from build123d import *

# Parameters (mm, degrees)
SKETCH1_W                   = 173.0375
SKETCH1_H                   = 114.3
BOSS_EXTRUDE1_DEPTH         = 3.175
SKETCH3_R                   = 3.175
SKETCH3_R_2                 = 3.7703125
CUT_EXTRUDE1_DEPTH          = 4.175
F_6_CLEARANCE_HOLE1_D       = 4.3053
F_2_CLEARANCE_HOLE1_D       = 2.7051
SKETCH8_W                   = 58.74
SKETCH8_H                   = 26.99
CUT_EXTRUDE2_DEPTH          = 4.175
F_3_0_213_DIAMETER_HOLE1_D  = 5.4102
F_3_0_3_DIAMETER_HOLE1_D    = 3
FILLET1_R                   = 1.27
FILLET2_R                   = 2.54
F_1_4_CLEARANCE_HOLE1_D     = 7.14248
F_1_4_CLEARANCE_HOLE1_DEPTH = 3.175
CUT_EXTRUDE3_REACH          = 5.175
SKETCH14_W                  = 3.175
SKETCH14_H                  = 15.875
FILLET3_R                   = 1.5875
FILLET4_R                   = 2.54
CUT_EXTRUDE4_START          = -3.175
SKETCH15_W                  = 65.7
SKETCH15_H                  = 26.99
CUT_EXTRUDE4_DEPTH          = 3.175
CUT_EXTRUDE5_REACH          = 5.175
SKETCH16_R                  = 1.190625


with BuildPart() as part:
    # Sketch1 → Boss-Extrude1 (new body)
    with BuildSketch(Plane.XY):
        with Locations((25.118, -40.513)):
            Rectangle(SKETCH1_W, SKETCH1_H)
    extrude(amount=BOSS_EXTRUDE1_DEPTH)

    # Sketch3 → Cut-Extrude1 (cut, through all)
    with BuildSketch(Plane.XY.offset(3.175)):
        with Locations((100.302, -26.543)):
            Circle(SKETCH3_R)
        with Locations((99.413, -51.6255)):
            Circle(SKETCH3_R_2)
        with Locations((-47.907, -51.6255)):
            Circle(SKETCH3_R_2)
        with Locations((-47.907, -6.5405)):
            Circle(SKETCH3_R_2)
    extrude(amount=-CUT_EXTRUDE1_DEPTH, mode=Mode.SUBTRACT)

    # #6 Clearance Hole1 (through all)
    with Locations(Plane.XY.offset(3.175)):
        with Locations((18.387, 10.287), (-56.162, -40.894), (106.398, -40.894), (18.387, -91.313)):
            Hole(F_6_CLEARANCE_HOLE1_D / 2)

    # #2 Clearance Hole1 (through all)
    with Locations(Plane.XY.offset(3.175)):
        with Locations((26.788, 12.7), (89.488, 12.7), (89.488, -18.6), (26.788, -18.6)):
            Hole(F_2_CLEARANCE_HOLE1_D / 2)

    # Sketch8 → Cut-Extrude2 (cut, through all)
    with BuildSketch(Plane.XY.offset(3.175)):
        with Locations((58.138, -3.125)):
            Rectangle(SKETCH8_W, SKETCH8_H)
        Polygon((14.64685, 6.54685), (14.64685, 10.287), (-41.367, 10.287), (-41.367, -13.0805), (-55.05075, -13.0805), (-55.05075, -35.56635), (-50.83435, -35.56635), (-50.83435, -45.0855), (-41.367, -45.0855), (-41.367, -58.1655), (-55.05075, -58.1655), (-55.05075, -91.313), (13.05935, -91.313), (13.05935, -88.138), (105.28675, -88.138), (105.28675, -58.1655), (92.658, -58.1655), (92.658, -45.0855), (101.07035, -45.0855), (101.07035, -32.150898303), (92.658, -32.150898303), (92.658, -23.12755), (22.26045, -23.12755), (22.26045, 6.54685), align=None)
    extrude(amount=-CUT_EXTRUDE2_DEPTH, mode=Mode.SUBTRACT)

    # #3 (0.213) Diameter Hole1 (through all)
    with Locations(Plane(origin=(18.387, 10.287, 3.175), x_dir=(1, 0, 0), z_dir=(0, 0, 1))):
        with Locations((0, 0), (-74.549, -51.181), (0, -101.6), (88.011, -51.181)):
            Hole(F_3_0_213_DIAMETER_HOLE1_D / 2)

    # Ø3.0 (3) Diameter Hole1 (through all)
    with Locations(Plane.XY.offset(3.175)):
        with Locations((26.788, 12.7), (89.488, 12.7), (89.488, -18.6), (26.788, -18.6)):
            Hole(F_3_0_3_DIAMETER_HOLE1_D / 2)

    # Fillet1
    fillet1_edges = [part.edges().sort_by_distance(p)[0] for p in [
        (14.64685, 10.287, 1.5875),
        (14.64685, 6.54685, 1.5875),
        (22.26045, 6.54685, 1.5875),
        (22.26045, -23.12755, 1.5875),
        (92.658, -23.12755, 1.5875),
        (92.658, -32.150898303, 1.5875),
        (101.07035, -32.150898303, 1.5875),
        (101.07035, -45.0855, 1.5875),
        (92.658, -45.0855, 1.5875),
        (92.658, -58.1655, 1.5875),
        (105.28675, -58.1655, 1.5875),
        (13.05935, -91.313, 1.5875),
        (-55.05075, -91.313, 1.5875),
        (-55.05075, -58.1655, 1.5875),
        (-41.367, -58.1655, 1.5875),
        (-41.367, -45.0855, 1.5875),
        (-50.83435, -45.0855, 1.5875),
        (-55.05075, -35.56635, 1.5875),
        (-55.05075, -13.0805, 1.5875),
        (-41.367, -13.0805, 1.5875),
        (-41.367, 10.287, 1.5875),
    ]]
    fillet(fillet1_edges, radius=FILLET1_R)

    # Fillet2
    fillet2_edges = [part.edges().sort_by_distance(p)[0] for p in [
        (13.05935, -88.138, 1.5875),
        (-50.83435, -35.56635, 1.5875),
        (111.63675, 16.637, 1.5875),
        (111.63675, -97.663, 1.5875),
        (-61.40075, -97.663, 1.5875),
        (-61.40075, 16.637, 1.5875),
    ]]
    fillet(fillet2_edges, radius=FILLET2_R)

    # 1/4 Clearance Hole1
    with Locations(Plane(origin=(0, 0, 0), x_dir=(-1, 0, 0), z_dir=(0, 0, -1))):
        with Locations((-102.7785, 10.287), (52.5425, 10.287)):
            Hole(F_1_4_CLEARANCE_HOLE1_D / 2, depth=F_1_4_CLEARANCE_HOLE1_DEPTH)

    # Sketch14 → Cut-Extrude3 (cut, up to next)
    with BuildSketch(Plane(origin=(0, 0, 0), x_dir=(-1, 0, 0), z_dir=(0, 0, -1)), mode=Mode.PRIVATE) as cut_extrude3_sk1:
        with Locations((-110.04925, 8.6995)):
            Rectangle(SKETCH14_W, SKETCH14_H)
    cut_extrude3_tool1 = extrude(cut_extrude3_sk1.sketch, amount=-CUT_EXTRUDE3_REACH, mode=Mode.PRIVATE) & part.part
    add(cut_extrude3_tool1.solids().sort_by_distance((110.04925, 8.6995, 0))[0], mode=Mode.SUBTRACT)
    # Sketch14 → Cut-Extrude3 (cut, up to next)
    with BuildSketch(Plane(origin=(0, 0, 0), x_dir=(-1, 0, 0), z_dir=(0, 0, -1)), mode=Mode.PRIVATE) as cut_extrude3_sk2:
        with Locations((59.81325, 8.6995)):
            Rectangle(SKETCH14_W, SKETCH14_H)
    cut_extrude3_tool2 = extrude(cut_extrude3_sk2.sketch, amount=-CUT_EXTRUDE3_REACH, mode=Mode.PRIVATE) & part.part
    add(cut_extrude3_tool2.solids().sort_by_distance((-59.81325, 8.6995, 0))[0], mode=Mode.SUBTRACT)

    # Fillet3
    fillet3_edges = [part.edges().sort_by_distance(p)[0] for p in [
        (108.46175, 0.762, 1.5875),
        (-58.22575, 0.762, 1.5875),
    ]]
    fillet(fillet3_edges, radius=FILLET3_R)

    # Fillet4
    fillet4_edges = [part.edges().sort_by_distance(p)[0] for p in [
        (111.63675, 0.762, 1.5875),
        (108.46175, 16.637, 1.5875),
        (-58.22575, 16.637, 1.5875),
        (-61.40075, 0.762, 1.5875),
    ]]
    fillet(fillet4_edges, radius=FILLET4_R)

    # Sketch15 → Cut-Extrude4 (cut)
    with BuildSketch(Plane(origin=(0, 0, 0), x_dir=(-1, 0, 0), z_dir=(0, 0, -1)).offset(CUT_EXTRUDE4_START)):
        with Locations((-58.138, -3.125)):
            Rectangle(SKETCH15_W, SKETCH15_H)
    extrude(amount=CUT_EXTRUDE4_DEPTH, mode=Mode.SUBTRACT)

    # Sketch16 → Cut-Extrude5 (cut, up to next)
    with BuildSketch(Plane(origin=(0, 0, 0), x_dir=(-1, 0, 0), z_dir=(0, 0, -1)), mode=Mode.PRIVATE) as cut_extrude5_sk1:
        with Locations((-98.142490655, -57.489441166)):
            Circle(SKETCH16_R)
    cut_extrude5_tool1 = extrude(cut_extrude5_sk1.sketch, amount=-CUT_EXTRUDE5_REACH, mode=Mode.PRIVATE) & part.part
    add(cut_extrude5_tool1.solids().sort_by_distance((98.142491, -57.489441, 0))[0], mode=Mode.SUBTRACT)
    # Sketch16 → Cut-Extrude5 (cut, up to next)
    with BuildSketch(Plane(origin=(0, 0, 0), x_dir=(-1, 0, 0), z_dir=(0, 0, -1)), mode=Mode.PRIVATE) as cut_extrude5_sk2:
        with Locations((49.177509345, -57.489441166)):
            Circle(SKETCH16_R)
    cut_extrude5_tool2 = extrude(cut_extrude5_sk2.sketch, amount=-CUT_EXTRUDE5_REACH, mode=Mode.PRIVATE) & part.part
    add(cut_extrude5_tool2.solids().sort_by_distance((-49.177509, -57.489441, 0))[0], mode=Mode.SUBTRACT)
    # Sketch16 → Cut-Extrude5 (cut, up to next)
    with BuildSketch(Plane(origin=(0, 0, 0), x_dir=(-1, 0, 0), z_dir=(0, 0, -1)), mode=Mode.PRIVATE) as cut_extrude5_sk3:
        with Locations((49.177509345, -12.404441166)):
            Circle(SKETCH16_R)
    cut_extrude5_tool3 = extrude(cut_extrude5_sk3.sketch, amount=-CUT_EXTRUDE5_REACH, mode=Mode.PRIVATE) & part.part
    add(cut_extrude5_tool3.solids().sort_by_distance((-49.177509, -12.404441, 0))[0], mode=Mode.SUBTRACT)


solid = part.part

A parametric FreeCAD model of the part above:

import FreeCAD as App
import Part
import Sketcher
from FreeCAD import Vector
Q = App.Units.Quantity


def edges_at(feature, points):
    """Names of the edges that pass closest to the given points."""
    edges = feature.Shape.Edges
    near = lambda p: min(range(len(edges)), key=lambda i: edges[i].distToShape(Part.Vertex(*p))[0])
    return sorted({f"Edge{near(p) + 1}" for p in points})


def add_polygon(sketch, points):
    """Adds a closed chain of lines whose ends are joined by coincident constraints."""
    first, n = sketch.GeometryCount, len(points)
    for a, b in zip(points, points[1:] + points[:1]):
        sketch.addGeometry(Part.LineSegment(App.Vector(*a, 0), App.Vector(*b, 0)), False)
    for i in range(n):
        sketch.addConstraint(Sketcher.Constraint("Coincident", first + i, 2, first + (i + 1) % n, 1))

doc = App.newDocument("Part")
params = doc.addObject("Spreadsheet::Sheet", "Params")
for row, (alias, value) in enumerate([
    ("sketch1_height", "4.5 in"),
    ("sketch1_width", "6.8125 in"),
    ("pad1_length", "0.125 in"),
    ("sketch2_diameter", "0.25 in"),
    ("sketch2_diameter2", "0.296875 in"),
    ("hole_diameter", "0.1695 in"),
    ("hole2_diameter", "0.1065 in"),
    ("sketch5_width", "0.166 in"),
    ("sketch5_width2", "3.631 in"),
    ("sketch5_height", "0.125 in"),
    ("sketch6_diameter", "0.213 in"),
    ("hole3_diameter", "0.213 in"),
    ("hole4_diameter", "3 mm"),
    ("fillet_radius", "0.05 in"),
    ("fillet2_radius", "0.1 in"),
    ("hole5_diameter", "0.2812 in"),
    ("hole5_depth", "0.125 in"),
    ("sketch9_width", "0.125 in"),
    ("sketch9_height", "0.625 in"),
    ("sketch10_width", "0.125 in"),
    ("sketch10_height", "0.625 in"),
    ("fillet3_radius", "0.0625 in"),
    ("fillet4_radius", "0.1 in"),
    ("pocket5_length", "0.125 in"),
    ("sketch12_diameter", "0.09375 in"),
    ("sketch13_diameter", "0.09375 in"),
    ("sketch14_diameter", "0.09375 in"),
], start=1):
    params.set(f"A{row}", alias)
    params.set(f"B{row}", "=" + value)
    params.setAlias(f"B{row}", alias)

body = doc.addObject("PartDesign::Body", "Body")

sketch1 = body.newObject("Sketcher::SketchObject", "Sketch")
sketch1.AttachmentSupport = (doc.getObject("XY_Plane"), [""])
sketch1.MapMode = "FlatFace"
add_polygon(sketch1, [(-61, 17), (-61, -98), (112, -98), (112, 17)])
sketch1.addConstraint([
    Sketcher.Constraint("Vertical", 0),
    Sketcher.Constraint("Horizontal", 1),
    Sketcher.Constraint("Vertical", 2),
    Sketcher.Constraint("Horizontal", 3),
    Sketcher.Constraint("DistanceY", 0, 2, 0, 1, Q("4.5 in")),
    Sketcher.Constraint("DistanceX", 1, 1, 1, 2, Q("6.8125 in")),
    Sketcher.Constraint("DistanceY", 0, 2, -1, 1, Q("3.845 in")),
    Sketcher.Constraint("DistanceX", 0, 2, -1, 1, 61.40075),
])
sketch1.setExpression("Constraints[8]", "Params.sketch1_height")
sketch1.setExpression("Constraints[9]", "Params.sketch1_width")
pad1 = body.newObject("PartDesign::Pad", "Pad")
pad1.Profile = sketch1
pad1.setExpression("Length", "Params.pad1_length")

sketch2 = body.newObject("Sketcher::SketchObject", "Sketch001")
sketch2.AttachmentSupport = (doc.getObject("XY_Plane"), [""])
sketch2.MapMode = "FlatFace"
sketch2.AttachmentOffset = App.Placement(Vector(0, 0, 0.125 * 25.4), App.Rotation())
sketch2.addGeometry([
    Part.Circle(Vector(100.3, -26.5, 0), Vector(0, 0, 1), 3.2),
    Part.Circle(Vector(99.4, -51.6, 0), Vector(0, 0, 1), 3.8),
    Part.Circle(Vector(-47.9, -51.6, 0), Vector(0, 0, 1), 3.8),
    Part.Circle(Vector(-47.9, -6.5, 0), Vector(0, 0, 1), 3.8),
], False)
sketch2.addConstraint([
    Sketcher.Constraint("Equal", 1, 2),
    Sketcher.Constraint("Equal", 2, 3),
    Sketcher.Constraint("Horizontal", 1, 3, 2, 3),
    Sketcher.Constraint("Vertical", 2, 3, 3, 3),
    Sketcher.Constraint("Diameter", 0, Q("0.25 in")),
    Sketcher.Constraint("Diameter", 1, Q("0.296875 in")),
    Sketcher.Constraint("DistanceX", 2, 3, 1, 3, Q("5.8 in")),
    Sketcher.Constraint("DistanceY", 0, 3, -1, 1, Q("1.045 in")),
    Sketcher.Constraint("DistanceX", 1, 3, 0, 3, Q("0.035 in")),
    Sketcher.Constraint("DistanceY", 2, 3, 3, 3, Q("1.775 in")),
    Sketcher.Constraint("DistanceY", 1, 3, -1, 1, Q("2.0325 in")),
    Sketcher.Constraint("DistanceX", -1, 1, 0, 3, 100.302),
])
sketch2.setExpression("Constraints[4]", "Params.sketch2_diameter")
sketch2.setExpression("Constraints[5]", "Params.sketch2_diameter2")
pocket1 = body.newObject("PartDesign::Pocket", "Pocket")
pocket1.Profile = sketch2
pocket1.Type = "ThroughAll"

sketch3 = body.newObject("Sketcher::SketchObject", "Sketch002")
sketch3.AttachmentSupport = (doc.getObject("XY_Plane"), [""])
sketch3.MapMode = "FlatFace"
sketch3.AttachmentOffset = App.Placement(Vector(0, 0, 0.125 * 25.4), App.Rotation())
sketch3.addGeometry([
    Part.Circle(Vector(18.4, 10.3, 0), Vector(0, 0, 1), 2.2),
    Part.Circle(Vector(-56.2, -40.9, 0), Vector(0, 0, 1), 2.2),
    Part.Circle(Vector(106.4, -40.9, 0), Vector(0, 0, 1), 2.2),
    Part.Circle(Vector(18.4, -91.3, 0), Vector(0, 0, 1), 2.2),
], False)
sketch3.addConstraint([
    Sketcher.Constraint("Equal", 0, 1),
    Sketcher.Constraint("Equal", 1, 2),
    Sketcher.Constraint("Equal", 2, 3),
    Sketcher.Constraint("Horizontal", 1, 3, 2, 3),
    Sketcher.Constraint("Vertical", 0, 3, 3, 3),
    Sketcher.Constraint("DistanceY", 3, 3, 0, 3, Q("4 in")),
    Sketcher.Constraint("Diameter", 0, Q("0.1695 in")),
    Sketcher.Constraint("DistanceX", 1, 3, 2, 3, Q("6.4 in")),
    Sketcher.Constraint("DistanceY", 1, 3, -1, 1, Q("1.61 in")),
    Sketcher.Constraint("DistanceY", -1, 1, 0, 3, Q("0.405 in")),
    Sketcher.Constraint("DistanceX", 1, 3, 0, 3, Q("2.935 in")),
    Sketcher.Constraint("DistanceX", -1, 1, 0, 3, 18.387),
])
doc.recompute()
hole = body.newObject("PartDesign::Hole", "Hole")
hole.Profile = sketch3
hole.ThreadType = "None"
hole.setExpression("Diameter", "Params.hole_diameter")
hole.DepthType = "ThroughAll"

sketch4 = body.newObject("Sketcher::SketchObject", "Sketch003")
sketch4.AttachmentSupport = (doc.getObject("XY_Plane"), [""])
sketch4.MapMode = "FlatFace"
sketch4.AttachmentOffset = App.Placement(Vector(0, 0, 0.125 * 25.4), App.Rotation())
sketch4.addGeometry([
    Part.Circle(Vector(26.8, 12.7, 0), Vector(0, 0, 1), 1.4),
    Part.Circle(Vector(89.5, 12.7, 0), Vector(0, 0, 1), 1.4),
    Part.Circle(Vector(89.5, -18.6, 0), Vector(0, 0, 1), 1.4),
    Part.Circle(Vector(26.8, -18.6, 0), Vector(0, 0, 1), 1.4),
], False)
sketch4.addConstraint([
    Sketcher.Constraint("Equal", 0, 1),
    Sketcher.Constraint("Equal", 1, 2),
    Sketcher.Constraint("Equal", 2, 3),
    Sketcher.Constraint("Horizontal", 0, 3, 1, 3),
    Sketcher.Constraint("Horizontal", 2, 3, 3, 3),
    Sketcher.Constraint("Vertical", 1, 3, 2, 3),
    Sketcher.Constraint("Vertical", 0, 3, 3, 3),
    Sketcher.Constraint("Diameter", 0, Q("0.1065 in")),
    Sketcher.Constraint("DistanceY", -1, 1, 0, 3, Q("0.5 in")),
    Sketcher.Constraint("DistanceX", -1, 1, 0, 3, 26.788),
    Sketcher.Constraint("DistanceX", -1, 1, 1, 3, 89.488),
    Sketcher.Constraint("DistanceY", 2, 3, -1, 1, 18.6),
])
doc.recompute()
hole2 = body.newObject("PartDesign::Hole", "Hole001")
hole2.Profile = sketch4
hole2.ThreadType = "None"
hole2.setExpression("Diameter", "Params.hole2_diameter")
hole2.DepthType = "ThroughAll"

sketch5 = body.newObject("Sketcher::SketchObject", "Sketch004")
sketch5.AttachmentSupport = (doc.getObject("XY_Plane"), [""])
sketch5.MapMode = "FlatFace"
sketch5.AttachmentOffset = App.Placement(Vector(0, 0, 0.125 * 25.4), App.Rotation())
add_polygon(sketch5, [(28.8, 10.4), (28.8, -16.6), (87.5, -16.6), (87.5, 10.4)])
add_polygon(sketch5, [(14.6, 6.5), (14.6, 10.3), (-41.4, 10.3), (-41.4, -13.1), (-55.1, -13.1), (-55.1, -35.6), (-50.8, -35.6), (-50.8, -45.1), (-41.4, -45.1), (-41.4, -58.2), (-55.1, -58.2), (-55.1, -91.3), (13.1, -91.3), (13.1, -88.1), (105.3, -88.1), (105.3, -58.2), (92.7, -58.2), (92.7, -45.1), (101.1, -45.1), (101.1, -32.2), (92.7, -32.2), (92.7, -23.1), (22.3, -23.1), (22.3, 6.5)])
sketch5.addConstraint([
    Sketcher.Constraint("Vertical", 0),
    Sketcher.Constraint("Horizontal", 1),
    Sketcher.Constraint("Vertical", 2),
    Sketcher.Constraint("Horizontal", 3),
    Sketcher.Constraint("Vertical", 4),
    Sketcher.Constraint("Horizontal", 5),
    Sketcher.Constraint("Vertical", 6),
    Sketcher.Constraint("Horizontal", 7),
    Sketcher.Constraint("Vertical", 8),
    Sketcher.Constraint("Horizontal", 9),
    Sketcher.Constraint("Vertical", 10),
    Sketcher.Constraint("Horizontal", 11),
    Sketcher.Constraint("Vertical", 12),
    Sketcher.Constraint("Horizontal", 13),
    Sketcher.Constraint("Vertical", 14),
    Sketcher.Constraint("Horizontal", 15),
    Sketcher.Constraint("Vertical", 16),
    Sketcher.Constraint("Horizontal", 17),
    Sketcher.Constraint("Vertical", 18),
    Sketcher.Constraint("Horizontal", 19),
    Sketcher.Constraint("Vertical", 20),
    Sketcher.Constraint("Horizontal", 21),
    Sketcher.Constraint("Vertical", 22),
    Sketcher.Constraint("Horizontal", 23),
    Sketcher.Constraint("Vertical", 24),
    Sketcher.Constraint("Horizontal", 25),
    Sketcher.Constraint("Vertical", 26),
    Sketcher.Constraint("Horizontal", 27),
    Sketcher.Constraint("Horizontal", 13, 2, 18, 2),
    Sketcher.Constraint("Horizontal", 11, 2, 20, 2),
    Sketcher.Constraint("Vertical", 6, 2, 11, 2),
    Sketcher.Constraint("Vertical", 8, 2, 13, 2),
    Sketcher.Constraint("Vertical", 20, 2, 23, 2),
    Sketcher.Constraint("DistanceX", 9, 1, 9, 2, Q("0.166 in")),
    Sketcher.Constraint("DistanceX", 17, 1, 17, 2, Q("3.631 in")),
    Sketcher.Constraint("DistanceY", 16, 1, 16, 2, Q("0.125 in")),
    Sketcher.Constraint("DistanceY", 16, 2, -1, 1, Q("3.47 in")),
    Sketcher.Constraint("DistanceX", 15, 1, 15, 2, Q("2.6815 in")),
    Sketcher.Constraint("DistanceY", -1, 1, 4, 2, Q("0.405 in")),
    Sketcher.Constraint("DistanceX", 7, 2, 4, 2, Q("2.744 in")),
    Sketcher.Constraint("DistanceY", 12, 2, 6, 2, Q("1.775 in")),
    Sketcher.Constraint("DistanceX", 21, 2, 18, 2, Q("0.166 in")),
    Sketcher.Constraint("DistanceX", 1, 1, 1, 2, 58.74),
    Sketcher.Constraint("DistanceX", 27, 2, 27, 1, 7.6136),
    Sketcher.Constraint("DistanceY", 0, 2, 0, 1, 26.99),
    Sketcher.Constraint("DistanceY", 6, 2, 6, 1, 23.3675),
    Sketcher.Constraint("DistanceY", 12, 2, 12, 1, 13.08),
    Sketcher.Constraint("DistanceY", 22, 1, 22, 2, 12.934602),
    Sketcher.Constraint("DistanceY", 26, 1, 26, 2, 29.6744),
    Sketcher.Constraint("DistanceX", 5, 2, 5, 1, 56.01385),
    Sketcher.Constraint("DistanceX", 19, 2, 19, 1, 12.62875),
    Sketcher.Constraint("DistanceY", 4, 1, 4, 2, 3.74015),
    Sketcher.Constraint("DistanceY", 8, 2, 8, 1, 22.48585),
    Sketcher.Constraint("DistanceX", -1, 1, 0, 2, 28.768),
    Sketcher.Constraint("DistanceY", 0, 2, -1, 1, 16.62),
    Sketcher.Constraint("DistanceX", 5, 2, -1, 1, 41.367),
])
sketch5.setExpression("Constraints[61]", "Params.sketch5_width")
sketch5.setExpression("Constraints[62]", "Params.sketch5_width2")
sketch5.setExpression("Constraints[63]", "Params.sketch5_height")
pocket2 = body.newObject("PartDesign::Pocket", "Pocket001")
pocket2.Profile = sketch5
pocket2.Type = "ThroughAll"

sketch6 = body.newObject("Sketcher::SketchObject", "Sketch005")
sketch6.AttachmentSupport = (doc.getObject("XY_Plane"), [""])
sketch6.MapMode = "FlatFace"
sketch6.AttachmentOffset = App.Placement(Vector(0, 0, 0.125 * 25.4), App.Rotation())
sketch6.addGeometry([
    Part.Circle(Vector(18.4, 10.3, 0), Vector(0, 0, 1), 2.7),
    Part.Circle(Vector(-56.2, -40.9, 0), Vector(0, 0, 1), 2.7),
    Part.Circle(Vector(18.4, -91.3, 0), Vector(0, 0, 1), 2.7),
    Part.Circle(Vector(106.4, -40.9, 0), Vector(0, 0, 1), 2.7),
], False)
sketch6.addConstraint([
    Sketcher.Constraint("Equal", 0, 1),
    Sketcher.Constraint("Equal", 1, 2),
    Sketcher.Constraint("Equal", 2, 3),
    Sketcher.Constraint("Horizontal", 1, 3, 3, 3),
    Sketcher.Constraint("Vertical", 0, 3, 2, 3),
    Sketcher.Constraint("Diameter", 0, Q("0.213 in")),
    Sketcher.Constraint("DistanceY", 2, 3, 0, 3, Q("4 in")),
    Sketcher.Constraint("DistanceX", 1, 3, 3, 3, Q("6.4 in")),
    Sketcher.Constraint("DistanceY", 1, 3, -1, 1, Q("1.61 in")),
    Sketcher.Constraint("DistanceY", -1, 1, 0, 3, Q("0.405 in")),
    Sketcher.Constraint("DistanceX", 1, 3, 0, 3, Q("2.935 in")),
    Sketcher.Constraint("DistanceX", -1, 1, 0, 3, 18.387),
])
sketch6.setExpression("Constraints[5]", "Params.sketch6_diameter")
doc.recompute()
hole3 = body.newObject("PartDesign::Hole", "Hole002")
hole3.Profile = sketch6
hole3.ThreadType = "None"
hole3.setExpression("Diameter", "Params.hole3_diameter")
hole3.DepthType = "ThroughAll"

sketch7 = body.newObject("Sketcher::SketchObject", "Sketch006")
sketch7.AttachmentSupport = (doc.getObject("XY_Plane"), [""])
sketch7.MapMode = "FlatFace"
sketch7.AttachmentOffset = App.Placement(Vector(0, 0, 0.125 * 25.4), App.Rotation())
sketch7.addGeometry([
    Part.Circle(Vector(26.8, 12.7, 0), Vector(0, 0, 1), 1.5),
    Part.Circle(Vector(89.5, 12.7, 0), Vector(0, 0, 1), 1.5),
    Part.Circle(Vector(89.5, -18.6, 0), Vector(0, 0, 1), 1.5),
    Part.Circle(Vector(26.8, -18.6, 0), Vector(0, 0, 1), 1.5),
], False)
sketch7.addConstraint([
    Sketcher.Constraint("Equal", 0, 1),
    Sketcher.Constraint("Equal", 1, 2),
    Sketcher.Constraint("Equal", 2, 3),
    Sketcher.Constraint("Horizontal", 0, 3, 1, 3),
    Sketcher.Constraint("Horizontal", 2, 3, 3, 3),
    Sketcher.Constraint("Vertical", 1, 3, 2, 3),
    Sketcher.Constraint("Vertical", 0, 3, 3, 3),
    Sketcher.Constraint("DistanceY", -1, 1, 0, 3, Q("0.5 in")),
    Sketcher.Constraint("Diameter", 0, 3.0),
    Sketcher.Constraint("DistanceX", -1, 1, 0, 3, 26.788),
    Sketcher.Constraint("DistanceX", -1, 1, 1, 3, 89.488),
    Sketcher.Constraint("DistanceY", 2, 3, -1, 1, 18.6),
])
doc.recompute()
hole4 = body.newObject("PartDesign::Hole", "Hole003")
hole4.Profile = sketch7
hole4.ThreadType = "None"
hole4.setExpression("Diameter", "Params.hole4_diameter")
hole4.DepthType = "ThroughAll"
doc.recompute()

fillet = body.newObject("PartDesign::Fillet", "Fillet")
fillet.Base = (hole4, edges_at(hole4, [
    (14.647, 10.287, 1.587),
    (14.647, 6.547, 1.587),
    (22.26, 6.547, 1.587),
    (22.26, -23.128, 1.587),
    (92.658, -23.128, 1.587),
    (92.658, -32.151, 1.587),
    (101.07, -32.151, 1.587),
    (101.07, -45.086, 1.587),
    (92.658, -45.086, 1.587),
    (92.658, -58.166, 1.587),
    (105.287, -58.166, 1.587),
    (13.059, -91.313, 1.587),
    (-55.051, -91.313, 1.587),
    (-55.051, -58.166, 1.587),
    (-41.367, -58.166, 1.587),
    (-41.367, -45.086, 1.587),
    (-50.834, -45.086, 1.587),
    (-55.051, -35.566, 1.587),
    (-55.051, -13.081, 1.587),
    (-41.367, -13.081, 1.587),
    (-41.367, 10.287, 1.587),
]))
fillet.setExpression("Radius", "Params.fillet_radius")
doc.recompute()

fillet2 = body.newObject("PartDesign::Fillet", "Fillet001")
fillet2.Base = (fillet, edges_at(fillet, [
    (13.059, -88.138, 1.587),
    (-50.834, -35.566, 1.587),
    (111.637, 16.637, 1.587),
    (111.637, -97.663, 1.587),
    (-61.401, -97.663, 1.587),
    (-61.401, 16.637, 1.587),
]))
fillet2.setExpression("Radius", "Params.fillet2_radius")

sketch8 = body.newObject("Sketcher::SketchObject", "Sketch007")
sketch8.AttachmentSupport = (doc.getObject("XY_Plane"), [""])
sketch8.MapMode = "FlatFace"
sketch8.addGeometry([
    Part.Circle(Vector(102.8, 10.3, 0), Vector(0, 0, 1), 3.6),
    Part.Circle(Vector(-52.5, 10.3, 0), Vector(0, 0, 1), 3.6),
], False)
sketch8.addConstraint([
    Sketcher.Constraint("Equal", 0, 1),
    Sketcher.Constraint("Horizontal", 0, 3, 1, 3),
    Sketcher.Constraint("Diameter", 0, Q("0.2812 in")),
    Sketcher.Constraint("DistanceY", -1, 1, 0, 3, Q("0.405 in")),
    Sketcher.Constraint("DistanceX", 1, 3, 0, 3, Q("6.115 in")),
    Sketcher.Constraint("DistanceX", -1, 1, 0, 3, 102.7785),
])
doc.recompute()
hole5 = body.newObject("PartDesign::Hole", "Hole004")
hole5.Profile = sketch8
hole5.ThreadType = "None"
hole5.setExpression("Diameter", "Params.hole5_diameter")
hole5.DepthType = "Dimension"
hole5.setExpression("Depth", "Params.hole5_depth")
hole5.DrillPoint = "Flat"
hole5.Reversed = True

sketch9 = body.newObject("Sketcher::SketchObject", "Sketch008")
sketch9.AttachmentSupport = (doc.getObject("XY_Plane"), [""])
sketch9.MapMode = "FlatFace"
add_polygon(sketch9, [(111.6, 16.6), (111.6, 0.8), (108.5, 0.8), (108.5, 16.6)])
sketch9.addConstraint([
    Sketcher.Constraint("Vertical", 0),
    Sketcher.Constraint("Horizontal", 1),
    Sketcher.Constraint("Vertical", 2),
    Sketcher.Constraint("Horizontal", 3),
    Sketcher.Constraint("DistanceX", 1, 2, 1, 1, Q("0.125 in")),
    Sketcher.Constraint("DistanceY", 0, 2, 0, 1, Q("0.625 in")),
    Sketcher.Constraint("DistanceY", -1, 1, 0, 2, Q("0.03 in")),
    Sketcher.Constraint("DistanceX", -1, 1, 0, 2, 111.63675),
])
sketch9.setExpression("Constraints[8]", "Params.sketch9_width")
sketch9.setExpression("Constraints[9]", "Params.sketch9_height")
pocket3 = body.newObject("PartDesign::Pocket", "Pocket002")
pocket3.Profile = sketch9
pocket3.Type = "UpToFirst"
pocket3.Reversed = True

sketch10 = body.newObject("Sketcher::SketchObject", "Sketch009")
sketch10.AttachmentSupport = (doc.getObject("XY_Plane"), [""])
sketch10.MapMode = "FlatFace"
add_polygon(sketch10, [(-58.2, 16.6), (-58.2, 0.8), (-61.4, 0.8), (-61.4, 16.6)])
sketch10.addConstraint([
    Sketcher.Constraint("Vertical", 0),
    Sketcher.Constraint("Horizontal", 1),
    Sketcher.Constraint("Vertical", 2),
    Sketcher.Constraint("Horizontal", 3),
    Sketcher.Constraint("DistanceX", 1, 2, 1, 1, Q("0.125 in")),
    Sketcher.Constraint("DistanceY", 0, 2, 0, 1, Q("0.625 in")),
    Sketcher.Constraint("DistanceY", -1, 1, 0, 2, Q("0.03 in")),
    Sketcher.Constraint("DistanceX", 0, 2, -1, 1, 58.22575),
])
sketch10.setExpression("Constraints[8]", "Params.sketch10_width")
sketch10.setExpression("Constraints[9]", "Params.sketch10_height")
pocket4 = body.newObject("PartDesign::Pocket", "Pocket003")
pocket4.Profile = sketch10
pocket4.Type = "UpToFirst"
pocket4.Reversed = True
doc.recompute()

fillet3 = body.newObject("PartDesign::Fillet", "Fillet002")
fillet3.Base = (pocket4, edges_at(pocket4, [(108.462, 0.762, 1.587), (-58.226, 0.762, 1.587)]))
fillet3.setExpression("Radius", "Params.fillet3_radius")
doc.recompute()

fillet4 = body.newObject("PartDesign::Fillet", "Fillet003")
fillet4.Base = (fillet3, edges_at(fillet3, [
    (111.637, 0.762, 1.587),
    (108.462, 16.637, 1.587),
    (-58.226, 16.637, 1.587),
    (-61.401, 0.762, 1.587),
]))
fillet4.setExpression("Radius", "Params.fillet4_radius")

sketch11 = body.newObject("Sketcher::SketchObject", "Sketch010")
sketch11.AttachmentSupport = (doc.getObject("XY_Plane"), [""])
sketch11.MapMode = "FlatFace"
sketch11.AttachmentOffset = App.Placement(Vector(0, 0, 0.125 * 25.4), App.Rotation())
add_polygon(sketch11, [(91, 10), (91, -17), (25, -17), (25, 10)])
sketch11.addConstraint([
    Sketcher.Constraint("Vertical", 0),
    Sketcher.Constraint("Horizontal", 1),
    Sketcher.Constraint("Vertical", 2),
    Sketcher.Constraint("Horizontal", 3),
    Sketcher.Constraint("DistanceX", 1, 2, 1, 1, 65.7),
    Sketcher.Constraint("DistanceY", 0, 2, 0, 1, 26.99),
    Sketcher.Constraint("DistanceX", -1, 1, 0, 2, 90.988),
    Sketcher.Constraint("DistanceY", 0, 2, -1, 1, 16.62),
])
pocket5 = body.newObject("PartDesign::Pocket", "Pocket004")
pocket5.Profile = sketch11
pocket5.setExpression("Length", "Params.pocket5_length")

sketch12 = body.newObject("Sketcher::SketchObject", "Sketch011")
sketch12.AttachmentSupport = (doc.getObject("XY_Plane"), [""])
sketch12.MapMode = "FlatFace"
sketch12.addGeometry(Part.Circle(Vector(98.1, -57.5, 0), Vector(0, 0, 1), 1.2), False)
sketch12.addConstraint([
    Sketcher.Constraint("Diameter", 0, Q("0.09375 in")),
    Sketcher.Constraint("DistanceX", -1, 1, 0, 3, 98.142491),
    Sketcher.Constraint("DistanceY", 0, 3, -1, 1, 57.489441),
])
sketch12.setExpression("Constraints[0]", "Params.sketch12_diameter")
pocket6 = body.newObject("PartDesign::Pocket", "Pocket005")
pocket6.Profile = sketch12
pocket6.Type = "UpToFirst"
pocket6.Reversed = True

sketch13 = body.newObject("Sketcher::SketchObject", "Sketch012")
sketch13.AttachmentSupport = (doc.getObject("XY_Plane"), [""])
sketch13.MapMode = "FlatFace"
sketch13.addGeometry(Part.Circle(Vector(-49.2, -57.5, 0), Vector(0, 0, 1), 1.2), False)
sketch13.addConstraint([
    Sketcher.Constraint("Diameter", 0, Q("0.09375 in")),
    Sketcher.Constraint("DistanceX", 0, 3, -1, 1, 49.177509),
    Sketcher.Constraint("DistanceY", 0, 3, -1, 1, 57.489441),
])
sketch13.setExpression("Constraints[0]", "Params.sketch13_diameter")
pocket7 = body.newObject("PartDesign::Pocket", "Pocket006")
pocket7.Profile = sketch13
pocket7.Type = "UpToFirst"
pocket7.Reversed = True

sketch14 = body.newObject("Sketcher::SketchObject", "Sketch013")
sketch14.AttachmentSupport = (doc.getObject("XY_Plane"), [""])
sketch14.MapMode = "FlatFace"
sketch14.addGeometry(Part.Circle(Vector(-49.2, -12.4, 0), Vector(0, 0, 1), 1.2), False)
sketch14.addConstraint([
    Sketcher.Constraint("Diameter", 0, Q("0.09375 in")),
    Sketcher.Constraint("DistanceX", 0, 3, -1, 1, 49.177509),
    Sketcher.Constraint("DistanceY", 0, 3, -1, 1, 12.404441),
])
sketch14.setExpression("Constraints[0]", "Params.sketch14_diameter")
pocket8 = body.newObject("PartDesign::Pocket", "Pocket007")
pocket8.Profile = sketch14
pocket8.Type = "UpToFirst"
pocket8.Reversed = True

doc.recompute()
